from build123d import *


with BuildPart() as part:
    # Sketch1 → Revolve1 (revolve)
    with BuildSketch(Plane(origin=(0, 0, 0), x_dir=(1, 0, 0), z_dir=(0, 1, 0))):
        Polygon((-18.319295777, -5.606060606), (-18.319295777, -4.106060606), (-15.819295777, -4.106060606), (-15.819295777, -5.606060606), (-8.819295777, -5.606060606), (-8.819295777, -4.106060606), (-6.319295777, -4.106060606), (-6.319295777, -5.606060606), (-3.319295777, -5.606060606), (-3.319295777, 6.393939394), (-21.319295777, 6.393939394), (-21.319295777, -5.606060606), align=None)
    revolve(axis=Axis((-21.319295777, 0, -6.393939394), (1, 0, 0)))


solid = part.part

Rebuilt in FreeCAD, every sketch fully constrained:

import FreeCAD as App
import Part
import Sketcher


def add_polygon(sketch, points):
    """Adds a closed chain of lines whose ends are joined by coincident constraints."""
    first, n = sketch.GeometryCount, len(points)
    for a, b in zip(points, points[1:] + points[:1]):
        sketch.addGeometry(Part.LineSegment(App.Vector(*a, 0), App.Vector(*b, 0)), False)
    for i in range(n):
        sketch.addConstraint(Sketcher.Constraint("Coincident", first + i, 2, first + (i + 1) % n, 1))

doc = App.newDocument("Part")
body = doc.addObject("PartDesign::Body", "Body")

sketch1 = doc.addObject("Sketcher::SketchObject", "Sketch")
body.addObject(sketch1)
sketch1.AttachmentSupport = (doc.XZ_Plane, [""])
sketch1.MapMode = "FlatFace"
add_polygon(sketch1, [(-18.319296, 5.606061), (-18.319296, 4.106061), (-15.819296, 4.106061), (-15.819296, 5.606061), (-8.819296, 5.606061), (-8.819296, 4.106061), (-6.319296, 4.106061), (-6.319296, 5.606061), (-3.319296, 5.606061), (-3.319296, -6.393939), (-21.319296, -6.393939), (-21.319296, 5.606061)])
sketch1.addGeometry(Part.LineSegment(App.Vector(-21.319296, -6.393939, 0), App.Vector(-3.319296, -6.393939, 0)), True)
sketch1.addConstraint([
    Sketcher.Constraint("Vertical", 0),
    Sketcher.Constraint("Horizontal", 1),
    Sketcher.Constraint("Vertical", 2),
    Sketcher.Constraint("Horizontal", 3),
    Sketcher.Constraint("Vertical", 4),
    Sketcher.Constraint("Horizontal", 5),
    Sketcher.Constraint("Vertical", 6),
    Sketcher.Constraint("Horizontal", 7),
    Sketcher.Constraint("Vertical", 8),
    Sketcher.Constraint("Horizontal", 9),
    Sketcher.Constraint("Vertical", 10),
    Sketcher.Constraint("Horizontal", 11),
    Sketcher.Constraint("Horizontal", 12),
    Sketcher.Constraint("Coincident", 12, 1, 9, 2),
    Sketcher.Constraint("Horizontal", 1, 2, 4, 2),
    Sketcher.Constraint("Horizontal", 3, 2, 6, 2),
    Sketcher.Constraint("Horizontal", 7, 2, 10, 2),
    Sketcher.Constraint("Vertical", 7, 2, 12, 2),
    Sketcher.Constraint("Equal", 1, 5),
    Sketcher.Constraint("Equal", 7, 11),
    Sketcher.Constraint("DistanceX", 3, 1, 3, 2, 7.0),
    Sketcher.Constraint("DistanceX", 7, 1, 7, 2, 3.0),
    Sketcher.Constraint("DistanceX", 9, 2, 9, 1, 18.0),
    Sketcher.Constraint("DistanceY", 8, 2, 8, 1, 12.0),
    Sketcher.Constraint("DistanceY", 0, 2, 0, 1, 1.5),
    Sketcher.Constraint("DistanceY", -1, 1, 0, 2, 4.106061),
    Sketcher.Constraint("DistanceX", 0, 2, -1, 1, 18.319296),
])
revolution = doc.addObject("PartDesign::Revolution", "Revolution")
body.addObject(revolution)
revolution.Profile = sketch1
revolution.ReferenceAxis = (sketch1, ["Axis0"])
revolution.Angle = 360

doc.recompute()
